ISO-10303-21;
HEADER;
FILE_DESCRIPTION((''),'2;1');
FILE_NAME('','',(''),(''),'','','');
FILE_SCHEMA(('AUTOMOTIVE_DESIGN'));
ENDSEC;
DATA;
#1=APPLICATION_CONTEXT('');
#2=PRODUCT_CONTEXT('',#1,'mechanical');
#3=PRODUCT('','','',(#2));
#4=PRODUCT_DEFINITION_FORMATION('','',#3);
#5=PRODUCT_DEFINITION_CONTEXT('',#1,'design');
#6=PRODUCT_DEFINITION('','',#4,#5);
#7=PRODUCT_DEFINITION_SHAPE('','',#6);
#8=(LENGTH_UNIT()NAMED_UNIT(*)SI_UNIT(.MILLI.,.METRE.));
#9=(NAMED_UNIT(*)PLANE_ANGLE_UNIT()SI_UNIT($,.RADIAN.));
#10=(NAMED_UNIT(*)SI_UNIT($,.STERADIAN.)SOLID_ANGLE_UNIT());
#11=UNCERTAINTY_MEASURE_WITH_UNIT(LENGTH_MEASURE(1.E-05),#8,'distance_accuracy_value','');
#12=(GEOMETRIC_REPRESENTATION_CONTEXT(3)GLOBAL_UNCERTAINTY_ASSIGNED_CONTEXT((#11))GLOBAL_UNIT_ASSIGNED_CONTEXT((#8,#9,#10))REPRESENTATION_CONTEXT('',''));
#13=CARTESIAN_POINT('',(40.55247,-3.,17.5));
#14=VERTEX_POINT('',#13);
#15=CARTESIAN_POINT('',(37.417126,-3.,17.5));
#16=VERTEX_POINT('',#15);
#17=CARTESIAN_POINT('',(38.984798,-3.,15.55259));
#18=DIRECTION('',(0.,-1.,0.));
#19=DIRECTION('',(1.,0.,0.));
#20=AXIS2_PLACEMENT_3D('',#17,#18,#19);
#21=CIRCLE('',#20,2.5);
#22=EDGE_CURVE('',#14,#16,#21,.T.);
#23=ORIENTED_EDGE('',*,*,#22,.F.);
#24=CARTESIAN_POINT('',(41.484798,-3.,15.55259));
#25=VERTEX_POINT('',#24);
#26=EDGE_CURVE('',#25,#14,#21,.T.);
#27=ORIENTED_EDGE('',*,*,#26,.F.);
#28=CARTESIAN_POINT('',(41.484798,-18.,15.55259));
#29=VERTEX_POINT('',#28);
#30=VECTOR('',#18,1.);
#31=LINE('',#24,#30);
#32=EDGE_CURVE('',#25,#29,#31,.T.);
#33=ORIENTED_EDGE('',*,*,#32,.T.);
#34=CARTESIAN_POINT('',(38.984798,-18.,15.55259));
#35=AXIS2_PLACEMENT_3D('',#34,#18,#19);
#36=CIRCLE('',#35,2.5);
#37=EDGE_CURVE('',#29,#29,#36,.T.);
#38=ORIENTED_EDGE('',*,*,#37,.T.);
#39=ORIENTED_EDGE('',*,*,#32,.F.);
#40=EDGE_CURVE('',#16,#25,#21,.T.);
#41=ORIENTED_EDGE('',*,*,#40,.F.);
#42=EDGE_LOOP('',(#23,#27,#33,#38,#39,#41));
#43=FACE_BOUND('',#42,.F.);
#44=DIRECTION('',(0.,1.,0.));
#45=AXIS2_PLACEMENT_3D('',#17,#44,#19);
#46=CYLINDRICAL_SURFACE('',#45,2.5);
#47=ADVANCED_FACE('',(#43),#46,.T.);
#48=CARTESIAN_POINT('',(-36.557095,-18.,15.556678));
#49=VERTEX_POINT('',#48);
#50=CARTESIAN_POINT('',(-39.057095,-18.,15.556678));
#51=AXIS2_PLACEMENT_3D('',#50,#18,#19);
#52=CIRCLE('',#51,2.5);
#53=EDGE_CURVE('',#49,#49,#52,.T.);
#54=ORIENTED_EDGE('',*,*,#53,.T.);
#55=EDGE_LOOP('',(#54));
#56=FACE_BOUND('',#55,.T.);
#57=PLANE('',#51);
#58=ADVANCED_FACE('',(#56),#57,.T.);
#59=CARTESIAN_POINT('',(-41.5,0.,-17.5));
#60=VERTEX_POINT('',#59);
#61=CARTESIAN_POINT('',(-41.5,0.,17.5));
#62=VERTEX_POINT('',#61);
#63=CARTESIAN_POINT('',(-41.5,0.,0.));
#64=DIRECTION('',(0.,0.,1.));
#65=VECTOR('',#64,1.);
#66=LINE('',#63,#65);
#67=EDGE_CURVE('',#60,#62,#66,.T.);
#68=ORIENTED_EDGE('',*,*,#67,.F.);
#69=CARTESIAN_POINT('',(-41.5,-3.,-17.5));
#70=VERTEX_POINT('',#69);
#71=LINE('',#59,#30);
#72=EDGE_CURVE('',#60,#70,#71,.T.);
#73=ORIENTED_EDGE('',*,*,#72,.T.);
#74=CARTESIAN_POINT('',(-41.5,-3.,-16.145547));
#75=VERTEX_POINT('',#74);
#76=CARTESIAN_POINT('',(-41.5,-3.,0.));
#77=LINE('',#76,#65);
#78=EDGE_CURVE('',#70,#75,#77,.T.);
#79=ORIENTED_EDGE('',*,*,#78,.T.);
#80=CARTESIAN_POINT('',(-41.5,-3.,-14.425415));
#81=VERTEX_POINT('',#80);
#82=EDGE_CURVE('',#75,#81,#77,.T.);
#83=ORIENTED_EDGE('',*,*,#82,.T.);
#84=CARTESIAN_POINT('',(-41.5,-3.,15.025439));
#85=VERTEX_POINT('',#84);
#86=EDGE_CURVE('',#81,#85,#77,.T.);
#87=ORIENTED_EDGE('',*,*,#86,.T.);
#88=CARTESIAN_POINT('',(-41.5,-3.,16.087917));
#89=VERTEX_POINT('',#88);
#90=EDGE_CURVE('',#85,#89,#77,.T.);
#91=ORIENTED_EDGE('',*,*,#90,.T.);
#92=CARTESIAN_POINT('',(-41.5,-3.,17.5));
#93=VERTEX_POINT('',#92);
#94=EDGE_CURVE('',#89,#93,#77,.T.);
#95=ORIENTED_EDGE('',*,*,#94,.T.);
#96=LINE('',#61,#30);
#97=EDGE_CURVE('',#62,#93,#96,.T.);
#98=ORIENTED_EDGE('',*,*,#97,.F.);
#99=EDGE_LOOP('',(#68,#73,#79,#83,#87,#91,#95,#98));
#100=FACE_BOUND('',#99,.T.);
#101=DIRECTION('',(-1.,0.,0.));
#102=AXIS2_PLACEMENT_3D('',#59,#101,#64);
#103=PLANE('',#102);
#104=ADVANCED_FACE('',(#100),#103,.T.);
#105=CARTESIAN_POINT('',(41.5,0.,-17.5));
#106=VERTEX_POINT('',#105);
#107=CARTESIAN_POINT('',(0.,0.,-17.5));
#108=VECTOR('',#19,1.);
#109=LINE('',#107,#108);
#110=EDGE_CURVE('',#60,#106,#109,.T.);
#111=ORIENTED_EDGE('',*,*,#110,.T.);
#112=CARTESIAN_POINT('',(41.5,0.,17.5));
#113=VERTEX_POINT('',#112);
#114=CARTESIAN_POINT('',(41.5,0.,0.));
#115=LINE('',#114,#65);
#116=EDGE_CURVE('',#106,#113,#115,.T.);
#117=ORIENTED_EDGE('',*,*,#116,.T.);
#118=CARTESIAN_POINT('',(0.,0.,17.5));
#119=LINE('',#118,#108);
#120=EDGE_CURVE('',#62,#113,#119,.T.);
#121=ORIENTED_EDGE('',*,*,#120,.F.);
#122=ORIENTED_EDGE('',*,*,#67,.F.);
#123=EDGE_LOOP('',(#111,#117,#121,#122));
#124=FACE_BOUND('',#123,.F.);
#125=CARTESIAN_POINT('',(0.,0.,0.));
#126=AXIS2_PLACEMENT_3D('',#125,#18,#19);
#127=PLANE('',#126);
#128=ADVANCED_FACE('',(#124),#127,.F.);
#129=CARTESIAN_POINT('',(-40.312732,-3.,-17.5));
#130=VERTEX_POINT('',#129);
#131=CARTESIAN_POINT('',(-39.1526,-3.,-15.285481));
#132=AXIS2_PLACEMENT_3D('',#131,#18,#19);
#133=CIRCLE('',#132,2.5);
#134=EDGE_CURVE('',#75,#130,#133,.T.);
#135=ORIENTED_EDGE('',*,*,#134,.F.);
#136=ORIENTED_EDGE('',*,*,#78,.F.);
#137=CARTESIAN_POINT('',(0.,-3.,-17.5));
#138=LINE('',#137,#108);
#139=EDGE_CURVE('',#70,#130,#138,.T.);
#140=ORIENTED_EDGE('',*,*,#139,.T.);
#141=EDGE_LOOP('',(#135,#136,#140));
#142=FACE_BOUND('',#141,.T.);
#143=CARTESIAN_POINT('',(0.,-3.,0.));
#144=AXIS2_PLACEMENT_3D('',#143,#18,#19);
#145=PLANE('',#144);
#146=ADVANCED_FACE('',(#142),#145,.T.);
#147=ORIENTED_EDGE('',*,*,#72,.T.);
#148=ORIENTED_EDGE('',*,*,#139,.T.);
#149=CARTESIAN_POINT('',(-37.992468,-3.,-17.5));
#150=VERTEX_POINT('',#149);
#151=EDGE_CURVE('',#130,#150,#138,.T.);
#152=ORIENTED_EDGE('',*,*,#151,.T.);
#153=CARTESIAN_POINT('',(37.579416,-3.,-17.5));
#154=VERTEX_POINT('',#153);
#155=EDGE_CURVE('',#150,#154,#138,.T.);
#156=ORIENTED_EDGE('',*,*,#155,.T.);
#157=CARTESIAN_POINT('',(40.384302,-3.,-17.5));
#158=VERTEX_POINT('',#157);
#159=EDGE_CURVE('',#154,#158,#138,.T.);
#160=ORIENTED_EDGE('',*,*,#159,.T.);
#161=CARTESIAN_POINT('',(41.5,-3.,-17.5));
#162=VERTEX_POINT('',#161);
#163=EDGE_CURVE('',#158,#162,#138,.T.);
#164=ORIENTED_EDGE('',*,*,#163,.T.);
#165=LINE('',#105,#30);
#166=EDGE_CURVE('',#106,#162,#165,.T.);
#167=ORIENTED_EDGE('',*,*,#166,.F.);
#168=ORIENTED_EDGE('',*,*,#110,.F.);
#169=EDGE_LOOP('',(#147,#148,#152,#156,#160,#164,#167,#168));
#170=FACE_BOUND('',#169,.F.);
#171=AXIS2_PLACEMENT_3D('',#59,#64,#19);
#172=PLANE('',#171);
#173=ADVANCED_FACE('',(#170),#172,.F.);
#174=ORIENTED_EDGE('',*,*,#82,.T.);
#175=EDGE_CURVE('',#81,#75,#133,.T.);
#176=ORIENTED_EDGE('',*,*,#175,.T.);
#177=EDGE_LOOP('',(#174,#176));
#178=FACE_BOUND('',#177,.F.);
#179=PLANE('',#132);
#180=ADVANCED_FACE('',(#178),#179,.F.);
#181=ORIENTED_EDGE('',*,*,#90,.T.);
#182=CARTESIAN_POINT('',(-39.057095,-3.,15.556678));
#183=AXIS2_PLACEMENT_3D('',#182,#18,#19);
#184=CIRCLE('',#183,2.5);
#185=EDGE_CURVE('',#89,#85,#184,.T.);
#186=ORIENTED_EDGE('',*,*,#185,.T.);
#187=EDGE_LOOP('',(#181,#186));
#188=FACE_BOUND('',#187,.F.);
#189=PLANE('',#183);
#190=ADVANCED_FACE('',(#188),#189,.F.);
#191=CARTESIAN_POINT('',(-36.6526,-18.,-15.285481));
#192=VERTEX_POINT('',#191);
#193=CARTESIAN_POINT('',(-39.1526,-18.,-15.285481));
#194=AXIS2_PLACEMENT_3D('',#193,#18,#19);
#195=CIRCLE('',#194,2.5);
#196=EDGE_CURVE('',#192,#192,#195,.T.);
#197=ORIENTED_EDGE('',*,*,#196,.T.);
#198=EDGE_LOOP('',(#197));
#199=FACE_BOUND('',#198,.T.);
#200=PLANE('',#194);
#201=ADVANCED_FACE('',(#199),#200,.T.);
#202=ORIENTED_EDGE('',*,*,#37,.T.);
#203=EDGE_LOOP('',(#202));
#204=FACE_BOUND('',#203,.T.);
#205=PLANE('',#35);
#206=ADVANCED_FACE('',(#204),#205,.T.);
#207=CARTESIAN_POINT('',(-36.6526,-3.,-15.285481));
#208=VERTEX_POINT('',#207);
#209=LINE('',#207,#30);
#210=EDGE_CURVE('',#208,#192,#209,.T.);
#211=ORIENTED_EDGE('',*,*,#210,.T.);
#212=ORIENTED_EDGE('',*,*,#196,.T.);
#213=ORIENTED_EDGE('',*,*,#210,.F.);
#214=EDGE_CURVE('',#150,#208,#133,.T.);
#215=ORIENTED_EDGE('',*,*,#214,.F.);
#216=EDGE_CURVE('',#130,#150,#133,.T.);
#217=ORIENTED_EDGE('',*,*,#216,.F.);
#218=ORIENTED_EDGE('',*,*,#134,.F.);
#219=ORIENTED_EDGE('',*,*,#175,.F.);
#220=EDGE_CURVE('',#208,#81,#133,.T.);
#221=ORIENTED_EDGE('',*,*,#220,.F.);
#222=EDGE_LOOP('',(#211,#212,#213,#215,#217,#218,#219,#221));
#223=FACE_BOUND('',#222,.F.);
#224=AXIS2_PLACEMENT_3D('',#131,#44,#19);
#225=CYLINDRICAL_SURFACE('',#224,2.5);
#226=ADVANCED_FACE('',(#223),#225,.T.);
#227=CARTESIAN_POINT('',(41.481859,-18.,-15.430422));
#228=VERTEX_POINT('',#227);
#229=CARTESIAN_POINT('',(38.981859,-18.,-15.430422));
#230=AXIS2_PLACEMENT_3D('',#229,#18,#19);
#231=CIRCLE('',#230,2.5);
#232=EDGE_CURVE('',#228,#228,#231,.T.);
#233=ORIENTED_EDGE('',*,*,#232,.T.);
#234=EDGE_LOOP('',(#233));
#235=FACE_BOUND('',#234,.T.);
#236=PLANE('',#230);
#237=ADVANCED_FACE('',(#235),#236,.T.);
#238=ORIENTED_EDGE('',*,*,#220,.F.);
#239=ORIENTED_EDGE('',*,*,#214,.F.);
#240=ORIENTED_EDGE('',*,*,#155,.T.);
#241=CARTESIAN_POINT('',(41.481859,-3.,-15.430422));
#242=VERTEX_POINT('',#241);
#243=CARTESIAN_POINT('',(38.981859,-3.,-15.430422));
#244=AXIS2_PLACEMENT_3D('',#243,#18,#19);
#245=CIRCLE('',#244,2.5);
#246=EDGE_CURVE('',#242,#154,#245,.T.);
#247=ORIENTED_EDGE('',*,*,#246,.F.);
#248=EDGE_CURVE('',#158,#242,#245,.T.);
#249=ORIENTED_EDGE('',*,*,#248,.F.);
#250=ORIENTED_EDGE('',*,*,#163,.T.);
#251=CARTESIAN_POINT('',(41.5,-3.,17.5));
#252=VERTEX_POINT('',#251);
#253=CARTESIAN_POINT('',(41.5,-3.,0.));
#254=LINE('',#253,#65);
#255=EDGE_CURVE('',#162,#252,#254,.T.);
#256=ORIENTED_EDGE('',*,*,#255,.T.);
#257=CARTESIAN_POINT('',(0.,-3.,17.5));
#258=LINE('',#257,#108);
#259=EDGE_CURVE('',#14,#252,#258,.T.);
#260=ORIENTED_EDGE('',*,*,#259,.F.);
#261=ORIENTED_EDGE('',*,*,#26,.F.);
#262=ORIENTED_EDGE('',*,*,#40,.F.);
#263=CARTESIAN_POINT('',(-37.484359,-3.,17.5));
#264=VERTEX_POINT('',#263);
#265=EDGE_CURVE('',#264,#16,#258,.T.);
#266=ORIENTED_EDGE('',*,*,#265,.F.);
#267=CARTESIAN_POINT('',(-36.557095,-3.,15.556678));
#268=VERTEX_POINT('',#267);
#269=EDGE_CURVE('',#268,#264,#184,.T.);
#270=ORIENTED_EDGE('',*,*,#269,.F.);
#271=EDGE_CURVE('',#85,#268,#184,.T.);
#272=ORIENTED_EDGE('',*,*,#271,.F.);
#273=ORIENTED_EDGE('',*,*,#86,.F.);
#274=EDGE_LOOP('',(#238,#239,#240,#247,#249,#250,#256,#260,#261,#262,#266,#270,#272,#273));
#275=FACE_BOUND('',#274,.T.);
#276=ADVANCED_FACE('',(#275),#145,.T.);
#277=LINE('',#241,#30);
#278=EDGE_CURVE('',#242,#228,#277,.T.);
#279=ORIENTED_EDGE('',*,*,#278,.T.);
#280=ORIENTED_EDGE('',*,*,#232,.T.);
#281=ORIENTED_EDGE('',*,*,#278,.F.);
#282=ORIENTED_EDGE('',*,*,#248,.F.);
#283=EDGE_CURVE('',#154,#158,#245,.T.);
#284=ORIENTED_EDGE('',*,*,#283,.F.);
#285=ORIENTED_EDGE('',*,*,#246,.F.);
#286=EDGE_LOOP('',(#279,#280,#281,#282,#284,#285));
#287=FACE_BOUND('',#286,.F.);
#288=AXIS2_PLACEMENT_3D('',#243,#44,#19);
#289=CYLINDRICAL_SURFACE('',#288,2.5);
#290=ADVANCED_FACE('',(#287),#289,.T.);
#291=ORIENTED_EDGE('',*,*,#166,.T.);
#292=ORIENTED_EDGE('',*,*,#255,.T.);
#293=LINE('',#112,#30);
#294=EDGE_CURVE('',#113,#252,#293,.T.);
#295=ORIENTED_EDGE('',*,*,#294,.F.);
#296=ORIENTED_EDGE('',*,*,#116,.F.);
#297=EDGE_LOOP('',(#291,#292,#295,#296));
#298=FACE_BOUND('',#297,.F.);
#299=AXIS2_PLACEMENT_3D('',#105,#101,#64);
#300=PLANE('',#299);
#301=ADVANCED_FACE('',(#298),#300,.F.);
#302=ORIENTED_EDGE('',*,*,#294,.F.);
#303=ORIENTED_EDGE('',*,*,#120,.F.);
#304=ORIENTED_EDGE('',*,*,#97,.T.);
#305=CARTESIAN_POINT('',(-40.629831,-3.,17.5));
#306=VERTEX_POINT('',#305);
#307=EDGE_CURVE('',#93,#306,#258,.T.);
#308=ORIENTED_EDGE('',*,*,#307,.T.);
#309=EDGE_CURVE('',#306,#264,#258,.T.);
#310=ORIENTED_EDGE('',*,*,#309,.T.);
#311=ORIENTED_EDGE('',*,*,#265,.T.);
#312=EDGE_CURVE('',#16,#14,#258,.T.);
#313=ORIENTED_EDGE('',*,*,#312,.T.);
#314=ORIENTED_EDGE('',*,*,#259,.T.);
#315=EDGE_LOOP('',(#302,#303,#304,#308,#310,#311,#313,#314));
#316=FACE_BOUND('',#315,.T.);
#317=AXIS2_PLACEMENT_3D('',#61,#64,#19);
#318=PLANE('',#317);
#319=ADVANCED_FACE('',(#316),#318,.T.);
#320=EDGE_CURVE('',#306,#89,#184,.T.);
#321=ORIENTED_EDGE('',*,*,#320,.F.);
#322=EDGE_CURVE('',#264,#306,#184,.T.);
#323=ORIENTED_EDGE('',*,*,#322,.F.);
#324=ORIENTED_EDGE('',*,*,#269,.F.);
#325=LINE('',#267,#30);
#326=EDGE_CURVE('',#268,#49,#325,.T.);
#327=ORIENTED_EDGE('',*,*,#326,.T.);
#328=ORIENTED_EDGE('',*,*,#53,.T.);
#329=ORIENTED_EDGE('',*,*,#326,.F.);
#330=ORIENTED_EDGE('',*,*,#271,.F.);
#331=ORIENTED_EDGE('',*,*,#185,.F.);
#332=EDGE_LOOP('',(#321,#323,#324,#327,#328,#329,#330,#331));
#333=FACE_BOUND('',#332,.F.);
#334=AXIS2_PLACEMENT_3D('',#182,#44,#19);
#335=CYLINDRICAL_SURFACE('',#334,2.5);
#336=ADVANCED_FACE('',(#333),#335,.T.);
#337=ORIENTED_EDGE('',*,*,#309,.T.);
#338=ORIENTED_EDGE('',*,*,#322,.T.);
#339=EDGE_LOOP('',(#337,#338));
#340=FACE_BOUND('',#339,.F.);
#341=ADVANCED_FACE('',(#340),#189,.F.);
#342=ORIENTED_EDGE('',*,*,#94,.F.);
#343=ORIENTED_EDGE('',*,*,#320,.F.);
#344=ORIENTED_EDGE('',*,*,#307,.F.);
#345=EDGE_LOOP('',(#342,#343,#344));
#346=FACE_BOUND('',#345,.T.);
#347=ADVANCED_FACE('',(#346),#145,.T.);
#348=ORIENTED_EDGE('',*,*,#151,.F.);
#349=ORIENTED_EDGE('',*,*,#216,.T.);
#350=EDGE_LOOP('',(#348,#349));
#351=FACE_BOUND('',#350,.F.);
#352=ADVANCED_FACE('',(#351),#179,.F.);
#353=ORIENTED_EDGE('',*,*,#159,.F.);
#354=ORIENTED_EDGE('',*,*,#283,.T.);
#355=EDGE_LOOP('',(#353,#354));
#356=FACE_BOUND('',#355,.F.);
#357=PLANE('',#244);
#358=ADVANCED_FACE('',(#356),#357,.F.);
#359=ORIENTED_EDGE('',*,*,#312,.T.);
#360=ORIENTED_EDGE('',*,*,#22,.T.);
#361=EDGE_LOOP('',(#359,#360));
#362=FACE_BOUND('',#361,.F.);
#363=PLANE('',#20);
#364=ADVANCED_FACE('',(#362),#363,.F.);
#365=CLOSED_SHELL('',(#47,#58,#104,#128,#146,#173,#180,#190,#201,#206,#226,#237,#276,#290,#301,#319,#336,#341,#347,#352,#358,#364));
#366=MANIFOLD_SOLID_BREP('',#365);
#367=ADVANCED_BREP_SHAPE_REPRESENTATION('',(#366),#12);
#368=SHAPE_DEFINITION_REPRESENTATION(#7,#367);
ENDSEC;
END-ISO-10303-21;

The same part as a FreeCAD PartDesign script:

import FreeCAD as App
import Part
import Sketcher

V = App.Vector
Q = App.Units.Quantity

doc = App.newDocument("Part")
body = doc.addObject("PartDesign::Body", "Body")

# Sketch on XZ plane
sketch1 = doc.addObject("Sketcher::SketchObject", "Sketch")
body.addObject(sketch1)
sketch1.AttachmentSupport = (doc.XZ_Plane, [""])
sketch1.MapMode = "FlatFace"
sketch1.addGeometry([
    Part.LineSegment(V(-42, 18, 0), V(-42, -18, 0)),
    Part.LineSegment(V(-42, -18, 0), V(42, -18, 0)),
    Part.LineSegment(V(42, -18, 0), V(42, 18, 0)),
    Part.LineSegment(V(42, 18, 0), V(-42, 18, 0)),
], False)
sketch1.addConstraint([
    Sketcher.Constraint("Coincident", 0, 2, 1, 1),
    Sketcher.Constraint("Coincident", 1, 2, 2, 1),
    Sketcher.Constraint("Coincident", 2, 2, 3, 1),
    Sketcher.Constraint("Coincident", 3, 2, 0, 1),
    Sketcher.Constraint("Vertical", 0),
    Sketcher.Constraint("Horizontal", 1),
    Sketcher.Constraint("Vertical", 2),
    Sketcher.Constraint("Horizontal", 3),
    Sketcher.Constraint("Symmetric", 0, 2, 2, 2, -1, 1),
    Sketcher.Constraint("DistanceX", 1, 1, 1, 2, Q("83 mm")),
    Sketcher.Constraint("DistanceY", 0, 2, 0, 1, Q("35 mm")),
])
pad1 = doc.addObject("PartDesign::Pad", "Pad")
body.addObject(pad1)
pad1.Profile = sketch1
pad1.Length = 3

# Sketch on XZ plane
sketch2 = doc.addObject("Sketcher::SketchObject", "Sketch001")
body.addObject(sketch2)
sketch2.AttachmentSupport = (doc.XZ_Plane, [""])
sketch2.MapMode = "FlatFace"
sketch2.AttachmentOffset = App.Placement(V(0, 0, 3), App.Rotation())
sketch2.addGeometry(Part.Circle(V(-39.2, -15.3, 0), V(0, 0, 1), 2.5), False)
sketch2.addConstraint([
    Sketcher.Constraint("Diameter", 0, Q("5 mm")),
    Sketcher.Constraint("DistanceX", 0, 3, -1, 1, Q("39.1526 mm")),
    Sketcher.Constraint("DistanceY", 0, 3, -1, 1, Q("15.285481 mm")),
])
pad2 = doc.addObject("PartDesign::Pad", "Pad001")
body.addObject(pad2)
pad2.Profile = sketch2
pad2.Length = 15

# Sketch on XZ plane
sketch3 = doc.addObject("Sketcher::SketchObject", "Sketch002")
body.addObject(sketch3)
sketch3.AttachmentSupport = (doc.XZ_Plane, [""])
sketch3.MapMode = "FlatFace"
sketch3.AttachmentOffset = App.Placement(V(0, 0, 3), App.Rotation())
sketch3.addGeometry(Part.Circle(V(-39.1, 15.6, 0), V(0, 0, 1), 2.5), False)
sketch3.addConstraint([
    Sketcher.Constraint("Diameter", 0, Q("5 mm")),
    Sketcher.Constraint("DistanceX", 0, 3, -1, 1, Q("39.057095 mm")),
    Sketcher.Constraint("DistanceY", -1, 1, 0, 3, Q("15.556678 mm")),
])
pad3 = doc.addObject("PartDesign::Pad", "Pad002")
body.addObject(pad3)
pad3.Profile = sketch3
pad3.Length = 15

# Sketch on XZ plane
sketch4 = doc.addObject("Sketcher::SketchObject", "Sketch003")
body.addObject(sketch4)
sketch4.AttachmentSupport = (doc.XZ_Plane, [""])
sketch4.MapMode = "FlatFace"
sketch4.AttachmentOffset = App.Placement(V(0, 0, 3), App.Rotation())
sketch4.addGeometry(Part.Circle(V(39, 15.6, 0), V(0, 0, 1), 2.5), False)
sketch4.addConstraint([
    Sketcher.Constraint("Diameter", 0, Q("5 mm")),
    Sketcher.Constraint("DistanceY", -1, 1, 0, 3, Q("15.55259 mm")),
    Sketcher.Constraint("DistanceX", -1, 1, 0, 3, Q("38.984798 mm")),
])
pad4 = doc.addObject("PartDesign::Pad", "Pad003")
body.addObject(pad4)
pad4.Profile = sketch4
pad4.Length = 15

# Sketch on XZ plane
sketch5 = doc.addObject("Sketcher::SketchObject", "Sketch004")
body.addObject(sketch5)
sketch5.AttachmentSupport = (doc.XZ_Plane, [""])
sketch5.MapMode = "FlatFace"
sketch5.AttachmentOffset = App.Placement(V(0, 0, 3), App.Rotation())
sketch5.addGeometry(Part.Circle(V(-39.2, -15.3, 0), V(0, 0, 1), 2.5), False)
sketch5.addConstraint([
    Sketcher.Constraint("Diameter", 0, Q("5 mm")),
    Sketcher.Constraint("DistanceX", 0, 3, -1, 1, Q("39.1526 mm")),
    Sketcher.Constraint("DistanceY", 0, 3, -1, 1, Q("15.285481 mm")),
])
pad5 = doc.addObject("PartDesign::Pad", "Pad004")
body.addObject(pad5)
pad5.Profile = sketch5
pad5.Length = 15

# Sketch on XZ plane
sketch6 = doc.addObject("Sketcher::SketchObject", "Sketch005")
body.addObject(sketch6)
sketch6.AttachmentSupport = (doc.XZ_Plane, [""])
sketch6.MapMode = "FlatFace"
sketch6.AttachmentOffset = App.Placement(V(0, 0, 3), App.Rotation())
sketch6.addGeometry(Part.Circle(V(39, -15.4, 0), V(0, 0, 1), 2.5), False)
sketch6.addConstraint([
    Sketcher.Constraint("Diameter", 0, Q("5 mm")),
    Sketcher.Constraint("DistanceX", -1, 1, 0, 3, Q("38.981859 mm")),
    Sketcher.Constraint("DistanceY", 0, 3, -1, 1, Q("15.430422 mm")),
])
pad6 = doc.addObject("PartDesign::Pad", "Pad005")
body.addObject(pad6)
pad6.Profile = sketch6
pad6.Length = 15

doc.recompute()
